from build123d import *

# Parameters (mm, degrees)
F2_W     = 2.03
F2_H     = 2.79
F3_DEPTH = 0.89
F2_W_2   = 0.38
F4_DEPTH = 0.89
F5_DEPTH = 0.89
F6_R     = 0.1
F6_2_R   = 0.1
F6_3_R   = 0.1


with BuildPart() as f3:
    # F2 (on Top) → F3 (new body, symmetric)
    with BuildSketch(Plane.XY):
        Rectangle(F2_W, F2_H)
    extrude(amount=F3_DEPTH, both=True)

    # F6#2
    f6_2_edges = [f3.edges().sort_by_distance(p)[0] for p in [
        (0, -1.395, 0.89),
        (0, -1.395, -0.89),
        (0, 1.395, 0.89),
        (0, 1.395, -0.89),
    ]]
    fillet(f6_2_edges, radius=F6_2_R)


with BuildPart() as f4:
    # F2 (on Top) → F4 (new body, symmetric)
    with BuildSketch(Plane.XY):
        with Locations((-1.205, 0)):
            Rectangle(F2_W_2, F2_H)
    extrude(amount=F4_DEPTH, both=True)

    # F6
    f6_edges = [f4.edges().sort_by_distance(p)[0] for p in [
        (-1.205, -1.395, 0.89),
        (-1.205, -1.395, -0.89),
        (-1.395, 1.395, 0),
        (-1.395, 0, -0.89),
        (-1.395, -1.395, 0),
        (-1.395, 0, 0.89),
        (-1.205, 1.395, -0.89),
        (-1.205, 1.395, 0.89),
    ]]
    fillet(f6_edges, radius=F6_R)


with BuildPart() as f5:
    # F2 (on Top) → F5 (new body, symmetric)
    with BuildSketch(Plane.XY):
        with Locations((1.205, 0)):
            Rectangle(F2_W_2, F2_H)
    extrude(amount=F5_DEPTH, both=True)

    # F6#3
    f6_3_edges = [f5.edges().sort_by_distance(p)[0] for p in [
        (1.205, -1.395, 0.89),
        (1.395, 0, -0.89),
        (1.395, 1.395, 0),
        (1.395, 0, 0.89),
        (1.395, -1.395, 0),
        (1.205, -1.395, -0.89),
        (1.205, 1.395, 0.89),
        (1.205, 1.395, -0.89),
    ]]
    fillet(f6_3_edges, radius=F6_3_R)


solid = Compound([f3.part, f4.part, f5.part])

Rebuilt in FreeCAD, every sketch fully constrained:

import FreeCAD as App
import Part
import Sketcher


def edges_at(feature, points):
    """Names of the edges that pass closest to the given points."""
    edges = feature.Shape.Edges
    near = lambda p: min(range(len(edges)), key=lambda i: edges[i].distToShape(Part.Vertex(*p))[0])
    return sorted({f"Edge{near(p) + 1}" for p in points})

doc = App.newDocument("Part")
body = doc.addObject("PartDesign::Body", "Body")

# Sketch on XY plane
sketch1 = doc.addObject("Sketcher::SketchObject", "Sketch")
body.addObject(sketch1)
sketch1.AttachmentSupport = (doc.XY_Plane, [""])
sketch1.MapMode = "FlatFace"
sketch1.addGeometry([
    Part.LineSegment(App.Vector(-1, 1.4, 0), App.Vector(-1, -1.4, 0)),
    Part.LineSegment(App.Vector(-1, -1.4, 0), App.Vector(1, -1.4, 0)),
    Part.LineSegment(App.Vector(1, -1.4, 0), App.Vector(1, 1.4, 0)),
    Part.LineSegment(App.Vector(1, 1.4, 0), App.Vector(-1, 1.4, 0)),
], False)
sketch1.addConstraint([
    Sketcher.Constraint("Coincident", 0, 2, 1, 1),
    Sketcher.Constraint("Coincident", 1, 2, 2, 1),
    Sketcher.Constraint("Coincident", 2, 2, 3, 1),
    Sketcher.Constraint("Coincident", 3, 2, 0, 1),
    Sketcher.Constraint("Vertical", 0),
    Sketcher.Constraint("Horizontal", 1),
    Sketcher.Constraint("Vertical", 2),
    Sketcher.Constraint("Horizontal", 3),
    Sketcher.Constraint("Symmetric", 0, 2, 2, 2, -1, 1),
    Sketcher.Constraint("DistanceX", 1, 1, 1, 2, 2.03),
    Sketcher.Constraint("DistanceY", 0, 2, 0, 1, 2.79),
])
pad1 = doc.addObject("PartDesign::Pad", "Pad")
body.addObject(pad1)
pad1.Profile = sketch1
pad1.Length = 1.78
pad1.Midplane = True
doc.recompute()

fillet = doc.addObject("PartDesign::Fillet", "Fillet")
body.addObject(fillet)
fillet.Base = (pad1, edges_at(pad1, [
    (0, -1.395, 0.89),
    (0, -1.395, -0.89),
    (0, 1.395, 0.89),
    (0, 1.395, -0.89),
]))
fillet.Radius = 0.1
body2 = doc.addObject("PartDesign::Body", "Body001")

# Sketch on XY plane
sketch2 = doc.addObject("Sketcher::SketchObject", "Sketch001")
body2.addObject(sketch2)
sketch2.AttachmentSupport = (doc.getObject("XY_Plane001"), [""])
sketch2.MapMode = "FlatFace"
sketch2.addGeometry([
    Part.LineSegment(App.Vector(-1.4, 1.4, 0), App.Vector(-1.4, -1.4, 0)),
    Part.LineSegment(App.Vector(-1.4, -1.4, 0), App.Vector(-1.01, -1.4, 0)),
    Part.LineSegment(App.Vector(-1.01, -1.4, 0), App.Vector(-1.01, 1.4, 0)),
    Part.LineSegment(App.Vector(-1.01, 1.4, 0), App.Vector(-1.4, 1.4, 0)),
], False)
sketch2.addConstraint([
    Sketcher.Constraint("Coincident", 0, 2, 1, 1),
    Sketcher.Constraint("Coincident", 1, 2, 2, 1),
    Sketcher.Constraint("Coincident", 2, 2, 3, 1),
    Sketcher.Constraint("Coincident", 3, 2, 0, 1),
    Sketcher.Constraint("Vertical", 0),
    Sketcher.Constraint("Horizontal", 1),
    Sketcher.Constraint("Vertical", 2),
    Sketcher.Constraint("Horizontal", 3),
    Sketcher.Constraint("DistanceX", 1, 1, 1, 2, 0.38),
    Sketcher.Constraint("DistanceY", 0, 2, 0, 1, 2.79),
    Sketcher.Constraint("DistanceX", 0, 2, -1, 1, 1.395),
    Sketcher.Constraint("DistanceY", 0, 2, -1, 1, 1.395),
])
pad2 = doc.addObject("PartDesign::Pad", "Pad001")
body2.addObject(pad2)
pad2.Profile = sketch2
pad2.Length = 1.78
pad2.Midplane = True
doc.recompute()

fillet2 = doc.addObject("PartDesign::Fillet", "Fillet001")
body2.addObject(fillet2)
fillet2.Base = (pad2, edges_at(pad2, [
    (-1.205, -1.395, 0.89),
    (-1.205, -1.395, -0.89),
    (-1.395, 1.395, 0),
    (-1.395, 0, -0.89),
    (-1.395, -1.395, 0),
    (-1.395, 0, 0.89),
    (-1.205, 1.395, -0.89),
    (-1.205, 1.395, 0.89),
]))
fillet2.Radius = 0.1
body3 = doc.addObject("PartDesign::Body", "Body002")

# Sketch on XY plane
sketch3 = doc.addObject("Sketcher::SketchObject", "Sketch002")
body3.addObject(sketch3)
sketch3.AttachmentSupport = (doc.getObject("XY_Plane002"), [""])
sketch3.MapMode = "FlatFace"
sketch3.addGeometry([
    Part.LineSegment(App.Vector(1.01, 1.4, 0), App.Vector(1.01, -1.4, 0)),
    Part.LineSegment(App.Vector(1.01, -1.4, 0), App.Vector(1.4, -1.4, 0)),
    Part.LineSegment(App.Vector(1.4, -1.4, 0), App.Vector(1.4, 1.4, 0)),
    Part.LineSegment(App.Vector(1.4, 1.4, 0), App.Vector(1.01, 1.4, 0)),
], False)
sketch3.addConstraint([
    Sketcher.Constraint("Coincident", 0, 2, 1, 1),
    Sketcher.Constraint("Coincident", 1, 2, 2, 1),
    Sketcher.Constraint("Coincident", 2, 2, 3, 1),
    Sketcher.Constraint("Coincident", 3, 2, 0, 1),
    Sketcher.Constraint("Vertical", 0),
    Sketcher.Constraint("Horizontal", 1),
    Sketcher.Constraint("Vertical", 2),
    Sketcher.Constraint("Horizontal", 3),
    Sketcher.Constraint("DistanceX", 1, 1, 1, 2, 0.38),
    Sketcher.Constraint("DistanceY", 0, 2, 0, 1, 2.79),
    Sketcher.Constraint("DistanceX", -1, 1, 0, 2, 1.015),
    Sketcher.Constraint("DistanceY", 0, 2, -1, 1, 1.395),
])
pad3 = doc.addObject("PartDesign::Pad", "Pad002")
body3.addObject(pad3)
pad3.Profile = sketch3
pad3.Length = 1.78
pad3.Midplane = True
doc.recompute()

fillet3 = doc.addObject("PartDesign::Fillet", "Fillet002")
body3.addObject(fillet3)
fillet3.Base = (pad3, edges_at(pad3, [
    (1.205, -1.395, 0.89),
    (1.395, 0, -0.89),
    (1.395, 1.395, 0),
    (1.395, 0, 0.89),
    (1.395, -1.395, 0),
    (1.205, -1.395, -0.89),
    (1.205, 1.395, 0.89),
    (1.205, 1.395, -0.89),
]))
fillet3.Radius = 0.1

doc.recompute()
